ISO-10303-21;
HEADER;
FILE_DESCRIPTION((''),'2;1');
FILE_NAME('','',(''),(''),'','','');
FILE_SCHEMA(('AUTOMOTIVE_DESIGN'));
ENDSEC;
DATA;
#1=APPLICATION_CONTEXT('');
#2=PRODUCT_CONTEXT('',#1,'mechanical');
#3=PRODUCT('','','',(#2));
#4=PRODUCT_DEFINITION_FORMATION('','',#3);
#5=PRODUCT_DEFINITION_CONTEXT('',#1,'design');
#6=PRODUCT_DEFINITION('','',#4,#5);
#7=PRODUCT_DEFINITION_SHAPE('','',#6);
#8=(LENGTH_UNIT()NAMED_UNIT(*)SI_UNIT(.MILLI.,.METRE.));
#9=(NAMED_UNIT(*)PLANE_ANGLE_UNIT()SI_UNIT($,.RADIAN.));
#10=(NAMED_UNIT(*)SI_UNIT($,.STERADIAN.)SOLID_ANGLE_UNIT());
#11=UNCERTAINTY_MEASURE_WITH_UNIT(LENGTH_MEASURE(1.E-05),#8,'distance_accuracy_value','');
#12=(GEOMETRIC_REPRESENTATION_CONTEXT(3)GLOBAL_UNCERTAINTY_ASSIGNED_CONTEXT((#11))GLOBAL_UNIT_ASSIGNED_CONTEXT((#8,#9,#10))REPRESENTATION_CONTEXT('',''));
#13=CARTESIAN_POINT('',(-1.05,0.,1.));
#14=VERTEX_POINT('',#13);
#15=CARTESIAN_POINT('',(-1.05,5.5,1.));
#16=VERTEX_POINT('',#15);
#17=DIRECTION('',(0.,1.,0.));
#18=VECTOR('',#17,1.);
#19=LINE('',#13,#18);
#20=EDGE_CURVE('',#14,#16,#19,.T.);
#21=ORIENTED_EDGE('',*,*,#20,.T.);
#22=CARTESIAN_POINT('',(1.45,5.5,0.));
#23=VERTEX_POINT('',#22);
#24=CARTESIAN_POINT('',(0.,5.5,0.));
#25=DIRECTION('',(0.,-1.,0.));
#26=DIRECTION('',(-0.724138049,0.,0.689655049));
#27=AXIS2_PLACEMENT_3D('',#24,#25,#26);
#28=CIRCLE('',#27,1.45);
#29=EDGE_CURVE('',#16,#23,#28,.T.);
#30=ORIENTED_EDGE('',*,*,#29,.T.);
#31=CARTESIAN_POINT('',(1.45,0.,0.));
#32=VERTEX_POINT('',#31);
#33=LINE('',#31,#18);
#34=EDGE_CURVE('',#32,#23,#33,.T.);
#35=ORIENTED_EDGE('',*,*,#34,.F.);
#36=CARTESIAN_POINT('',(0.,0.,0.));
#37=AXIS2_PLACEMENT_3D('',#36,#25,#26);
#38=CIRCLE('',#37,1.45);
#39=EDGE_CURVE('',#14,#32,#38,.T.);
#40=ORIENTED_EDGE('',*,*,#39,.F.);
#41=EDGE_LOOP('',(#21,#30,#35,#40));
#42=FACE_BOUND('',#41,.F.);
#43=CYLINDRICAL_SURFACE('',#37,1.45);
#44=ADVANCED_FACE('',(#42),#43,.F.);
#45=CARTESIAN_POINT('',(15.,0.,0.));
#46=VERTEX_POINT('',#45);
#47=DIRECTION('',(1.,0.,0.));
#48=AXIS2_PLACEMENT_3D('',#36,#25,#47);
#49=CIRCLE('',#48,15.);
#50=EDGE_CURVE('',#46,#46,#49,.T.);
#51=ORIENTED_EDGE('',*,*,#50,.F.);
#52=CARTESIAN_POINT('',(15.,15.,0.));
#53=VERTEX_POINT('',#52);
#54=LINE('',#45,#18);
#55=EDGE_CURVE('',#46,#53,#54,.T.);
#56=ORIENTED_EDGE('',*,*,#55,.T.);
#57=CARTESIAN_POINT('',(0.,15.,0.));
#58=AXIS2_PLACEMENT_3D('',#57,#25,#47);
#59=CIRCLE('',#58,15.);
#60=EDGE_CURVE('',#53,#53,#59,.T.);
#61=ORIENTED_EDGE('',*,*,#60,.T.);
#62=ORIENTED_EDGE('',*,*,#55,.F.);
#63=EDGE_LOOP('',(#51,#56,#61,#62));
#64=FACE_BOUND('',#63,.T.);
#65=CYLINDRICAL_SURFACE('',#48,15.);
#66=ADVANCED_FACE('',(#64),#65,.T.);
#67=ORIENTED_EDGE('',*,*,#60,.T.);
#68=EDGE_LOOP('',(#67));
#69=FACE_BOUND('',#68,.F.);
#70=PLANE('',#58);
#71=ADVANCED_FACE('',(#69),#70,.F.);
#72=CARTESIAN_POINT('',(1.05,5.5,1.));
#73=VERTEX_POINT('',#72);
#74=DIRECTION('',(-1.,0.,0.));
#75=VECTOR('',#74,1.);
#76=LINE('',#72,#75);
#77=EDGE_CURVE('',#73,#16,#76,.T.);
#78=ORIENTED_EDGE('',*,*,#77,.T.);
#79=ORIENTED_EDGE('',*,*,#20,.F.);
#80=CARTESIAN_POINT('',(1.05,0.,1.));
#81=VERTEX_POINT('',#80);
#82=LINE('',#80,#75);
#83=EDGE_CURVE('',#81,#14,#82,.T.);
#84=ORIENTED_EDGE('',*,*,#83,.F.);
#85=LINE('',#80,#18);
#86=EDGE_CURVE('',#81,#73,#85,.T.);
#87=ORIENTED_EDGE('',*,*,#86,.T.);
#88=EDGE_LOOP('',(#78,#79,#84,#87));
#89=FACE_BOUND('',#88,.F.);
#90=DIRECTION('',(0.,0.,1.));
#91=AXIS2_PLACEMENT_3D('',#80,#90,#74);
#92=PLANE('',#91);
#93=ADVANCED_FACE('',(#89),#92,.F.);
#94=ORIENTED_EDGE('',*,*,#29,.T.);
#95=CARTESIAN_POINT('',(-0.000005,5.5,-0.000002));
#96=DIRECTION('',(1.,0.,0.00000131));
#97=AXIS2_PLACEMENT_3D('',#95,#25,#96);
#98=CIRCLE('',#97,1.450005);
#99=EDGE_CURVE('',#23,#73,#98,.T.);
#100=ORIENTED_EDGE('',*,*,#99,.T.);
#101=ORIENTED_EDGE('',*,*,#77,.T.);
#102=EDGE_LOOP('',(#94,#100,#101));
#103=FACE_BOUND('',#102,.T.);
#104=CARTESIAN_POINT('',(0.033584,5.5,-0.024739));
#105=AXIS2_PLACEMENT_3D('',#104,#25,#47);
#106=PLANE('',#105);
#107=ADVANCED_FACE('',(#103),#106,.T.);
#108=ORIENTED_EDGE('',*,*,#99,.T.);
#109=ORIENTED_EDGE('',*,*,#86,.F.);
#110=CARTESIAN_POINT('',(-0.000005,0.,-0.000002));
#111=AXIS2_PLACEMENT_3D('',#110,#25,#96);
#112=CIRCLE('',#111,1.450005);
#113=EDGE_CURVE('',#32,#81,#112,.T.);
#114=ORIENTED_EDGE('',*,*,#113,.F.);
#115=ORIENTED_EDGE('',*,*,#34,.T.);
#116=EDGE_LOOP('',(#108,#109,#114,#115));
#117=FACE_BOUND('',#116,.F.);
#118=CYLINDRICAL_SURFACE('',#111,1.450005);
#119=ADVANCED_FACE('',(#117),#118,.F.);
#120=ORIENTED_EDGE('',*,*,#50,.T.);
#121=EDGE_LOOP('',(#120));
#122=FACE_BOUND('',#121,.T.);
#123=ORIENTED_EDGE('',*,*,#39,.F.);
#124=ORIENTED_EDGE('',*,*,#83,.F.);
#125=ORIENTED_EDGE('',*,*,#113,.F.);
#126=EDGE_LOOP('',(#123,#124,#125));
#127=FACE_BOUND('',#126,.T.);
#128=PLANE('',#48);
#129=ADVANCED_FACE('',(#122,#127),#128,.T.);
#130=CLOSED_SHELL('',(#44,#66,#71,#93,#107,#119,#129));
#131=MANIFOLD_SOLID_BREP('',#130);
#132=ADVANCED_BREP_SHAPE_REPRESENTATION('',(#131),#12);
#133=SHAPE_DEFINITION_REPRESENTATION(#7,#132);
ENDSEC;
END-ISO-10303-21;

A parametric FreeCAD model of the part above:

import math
import FreeCAD as App
import Part
import Sketcher
from FreeCAD import Vector

doc = App.newDocument("Part")
body = doc.addObject("PartDesign::Body", "Body")

sketch1 = body.newObject("Sketcher::SketchObject", "Sketch")
sketch1.AttachmentSupport = (doc.getObject("XZ_Plane"), [""])
sketch1.MapMode = "FlatFace"
sketch1.addGeometry(Part.Circle(Vector(0, 0, 0), Vector(0, 0, 1), 15), False)
sketch1.addConstraint([
    Sketcher.Constraint("Coincident", 0, 3, -1, 1),
    Sketcher.Constraint("Diameter", 0, 30.0),
])
pad1 = body.newObject("PartDesign::Pad", "Pad")
pad1.Profile = sketch1
pad1.Length = 15
pad1.Reversed = True

sketch2 = body.newObject("Sketcher::SketchObject", "Sketch001")
sketch2.AttachmentSupport = (doc.getObject("XZ_Plane"), [""])
sketch2.MapMode = "FlatFace"
sketch2.addGeometry([
    Part.ArcOfCircle(Part.Circle(Vector(0, 0, 0), Vector(0, 0, 1), 1.4), math.radians(136), math.radians(360)),
    Part.ArcOfCircle(Part.Circle(Vector(0, 0, 0), Vector(0, 0, 1), 1.5), math.radians(0), math.radians(44)),
    Part.LineSegment(Vector(1.1, 1, 0), Vector(-1.1, 1, 0)),
], False)
sketch2.addConstraint([
    Sketcher.Constraint("Tangent", 0, 2, 1, 1),
    Sketcher.Constraint("Coincident", 1, 2, 2, 1),
    Sketcher.Constraint("Coincident", 2, 2, 0, 1),
    Sketcher.Constraint("Horizontal", 2),
    Sketcher.Constraint("Coincident", 0, 3, -1, 1),
    Sketcher.Constraint("PointOnObject", 0, 2, -1),
    Sketcher.Constraint("Radius", 0, 1.45),
    Sketcher.Constraint("DistanceX", 2, 2, 2, 1, 2.1),
    Sketcher.Constraint("DistanceY", -1, 1, 1, 2, 1.0),
])
pocket1 = body.newObject("PartDesign::Pocket", "Pocket")
pocket1.Profile = sketch2
pocket1.Length = 5.5

doc.recompute()
